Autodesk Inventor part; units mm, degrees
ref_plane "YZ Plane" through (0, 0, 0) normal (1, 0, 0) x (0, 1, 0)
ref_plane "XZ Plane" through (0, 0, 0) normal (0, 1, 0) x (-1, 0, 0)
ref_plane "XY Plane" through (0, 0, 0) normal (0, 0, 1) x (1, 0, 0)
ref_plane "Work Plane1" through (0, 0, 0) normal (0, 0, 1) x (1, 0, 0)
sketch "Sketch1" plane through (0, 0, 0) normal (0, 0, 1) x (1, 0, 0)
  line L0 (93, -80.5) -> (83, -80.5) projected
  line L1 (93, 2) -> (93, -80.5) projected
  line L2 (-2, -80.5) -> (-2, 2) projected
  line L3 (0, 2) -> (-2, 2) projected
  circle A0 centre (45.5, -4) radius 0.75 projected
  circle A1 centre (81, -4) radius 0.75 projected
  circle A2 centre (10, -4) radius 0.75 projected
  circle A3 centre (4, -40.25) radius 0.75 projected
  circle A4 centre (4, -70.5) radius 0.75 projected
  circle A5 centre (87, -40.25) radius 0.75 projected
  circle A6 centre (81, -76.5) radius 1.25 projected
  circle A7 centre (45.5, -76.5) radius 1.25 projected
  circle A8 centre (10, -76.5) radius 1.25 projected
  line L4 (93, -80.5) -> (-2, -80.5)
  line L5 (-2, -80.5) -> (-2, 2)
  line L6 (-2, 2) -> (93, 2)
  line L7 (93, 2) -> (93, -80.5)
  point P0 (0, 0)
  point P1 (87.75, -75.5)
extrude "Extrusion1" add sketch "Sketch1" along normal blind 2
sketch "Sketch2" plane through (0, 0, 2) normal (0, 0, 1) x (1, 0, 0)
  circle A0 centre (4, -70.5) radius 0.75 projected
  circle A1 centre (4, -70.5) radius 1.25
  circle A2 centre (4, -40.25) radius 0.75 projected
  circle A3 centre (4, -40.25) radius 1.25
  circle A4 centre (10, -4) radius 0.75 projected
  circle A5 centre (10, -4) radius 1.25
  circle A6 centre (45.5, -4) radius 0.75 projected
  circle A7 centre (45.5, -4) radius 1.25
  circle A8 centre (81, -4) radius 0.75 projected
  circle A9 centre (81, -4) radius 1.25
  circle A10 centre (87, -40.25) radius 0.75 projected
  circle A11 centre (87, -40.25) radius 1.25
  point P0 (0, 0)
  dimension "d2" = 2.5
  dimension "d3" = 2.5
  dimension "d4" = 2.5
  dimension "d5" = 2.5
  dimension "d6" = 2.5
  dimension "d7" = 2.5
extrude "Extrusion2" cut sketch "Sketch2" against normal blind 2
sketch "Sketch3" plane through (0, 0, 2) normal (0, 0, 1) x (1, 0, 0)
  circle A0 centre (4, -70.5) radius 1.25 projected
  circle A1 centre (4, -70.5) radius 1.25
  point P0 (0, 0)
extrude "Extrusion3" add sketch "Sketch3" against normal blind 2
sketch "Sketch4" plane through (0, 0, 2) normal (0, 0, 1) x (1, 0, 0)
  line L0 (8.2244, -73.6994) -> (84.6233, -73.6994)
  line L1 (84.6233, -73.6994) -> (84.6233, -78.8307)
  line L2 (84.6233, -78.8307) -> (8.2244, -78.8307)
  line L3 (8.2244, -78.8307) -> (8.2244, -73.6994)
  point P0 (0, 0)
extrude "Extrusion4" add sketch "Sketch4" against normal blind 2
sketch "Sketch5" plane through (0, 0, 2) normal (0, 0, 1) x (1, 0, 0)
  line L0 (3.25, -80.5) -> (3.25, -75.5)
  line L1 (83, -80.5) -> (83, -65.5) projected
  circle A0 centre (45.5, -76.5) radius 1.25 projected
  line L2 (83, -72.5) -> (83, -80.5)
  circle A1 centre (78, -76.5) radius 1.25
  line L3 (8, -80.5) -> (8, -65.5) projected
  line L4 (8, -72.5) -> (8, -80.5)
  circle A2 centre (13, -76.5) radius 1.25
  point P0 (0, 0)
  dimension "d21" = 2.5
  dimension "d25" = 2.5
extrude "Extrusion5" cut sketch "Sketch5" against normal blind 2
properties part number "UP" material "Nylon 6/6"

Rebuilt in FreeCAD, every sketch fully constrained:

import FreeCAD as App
import Part
import Sketcher

doc = App.newDocument("Part")
body = doc.addObject("PartDesign::Body", "Body")

sketch1 = doc.addObject("Sketcher::SketchObject", "Sketch")
body.addObject(sketch1)
sketch1.AttachmentSupport = (doc.XY_Plane, [""])
sketch1.MapMode = "FlatFace"
sketch1.addGeometry([
    Part.LineSegment(App.Vector(-2, -80.5, 0), App.Vector(93, -80.5, 0)),
    Part.LineSegment(App.Vector(93, -80.5, 0), App.Vector(93, 2, 0)),
    Part.LineSegment(App.Vector(93, 2, 0), App.Vector(-2, 2, 0)),
    Part.LineSegment(App.Vector(-2, 2, 0), App.Vector(-2, -80.5, 0)),
    Part.Circle(App.Vector(4, -70.5, 0), App.Vector(0, 0, 1), 0.8),
    Part.Circle(App.Vector(10, -76.5, 0), App.Vector(0, 0, 1), 1.2),
    Part.Circle(App.Vector(4, -40.2, 0), App.Vector(0, 0, 1), 0.8),
    Part.Circle(App.Vector(45.5, -76.5, 0), App.Vector(0, 0, 1), 1.2),
    Part.Circle(App.Vector(81, -76.5, 0), App.Vector(0, 0, 1), 1.2),
    Part.Circle(App.Vector(87, -40.2, 0), App.Vector(0, 0, 1), 0.8),
    Part.Circle(App.Vector(10, -4, 0), App.Vector(0, 0, 1), 0.8),
    Part.Circle(App.Vector(45.5, -4, 0), App.Vector(0, 0, 1), 0.8),
    Part.Circle(App.Vector(81, -4, 0), App.Vector(0, 0, 1), 0.8),
], False)
sketch1.addConstraint([
    Sketcher.Constraint("Coincident", 0, 2, 1, 1),
    Sketcher.Constraint("Coincident", 1, 2, 2, 1),
    Sketcher.Constraint("Coincident", 2, 2, 3, 1),
    Sketcher.Constraint("Coincident", 3, 2, 0, 1),
    Sketcher.Constraint("Horizontal", 0),
    Sketcher.Constraint("Vertical", 1),
    Sketcher.Constraint("Horizontal", 2),
    Sketcher.Constraint("Vertical", 3),
    Sketcher.Constraint("Equal", 4, 6),
    Sketcher.Constraint("Equal", 5, 7),
    Sketcher.Constraint("Equal", 7, 8),
    Sketcher.Constraint("Equal", 6, 9),
    Sketcher.Constraint("Equal", 9, 10),
    Sketcher.Constraint("Equal", 10, 11),
    Sketcher.Constraint("Equal", 11, 12),
    Sketcher.Constraint("Horizontal", 5, 3, 7, 3),
    Sketcher.Constraint("Horizontal", 7, 3, 8, 3),
    Sketcher.Constraint("Horizontal", 6, 3, 9, 3),
    Sketcher.Constraint("Horizontal", 10, 3, 11, 3),
    Sketcher.Constraint("Horizontal", 11, 3, 12, 3),
    Sketcher.Constraint("Vertical", 4, 3, 6, 3),
    Sketcher.Constraint("Vertical", 5, 3, 10, 3),
    Sketcher.Constraint("Vertical", 7, 3, 11, 3),
    Sketcher.Constraint("Vertical", 8, 3, 12, 3),
    Sketcher.Constraint("Diameter", 4, 1.5),
    Sketcher.Constraint("Diameter", 5, 2.5),
    Sketcher.Constraint("DistanceX", 0, 1, 0, 2, 95.0),
    Sketcher.Constraint("DistanceY", 1, 1, 1, 2, 82.5),
    Sketcher.Constraint("DistanceX", -1, 1, 4, 3, 4.0),
    Sketcher.Constraint("DistanceX", -1, 1, 5, 3, 10.0),
    Sketcher.Constraint("DistanceX", -1, 1, 8, 3, 81.0),
    Sketcher.Constraint("DistanceX", -1, 1, 9, 3, 87.0),
    Sketcher.Constraint("DistanceY", 10, 3, -1, 1, 4.0),
    Sketcher.Constraint("DistanceX", -1, 1, 0, 2, 93.0),
    Sketcher.Constraint("DistanceY", -1, 1, 1, 2, 2.0),
    Sketcher.Constraint("DistanceY", 5, 3, 4, 3, 6.0),
    Sketcher.Constraint("DistanceY", 0, 2, 8, 3, 4.0),
    Sketcher.Constraint("DistanceX", -1, 1, 7, 3, 45.5),
    Sketcher.Constraint("DistanceY", 6, 3, -1, 1, 40.25),
])
pad1 = doc.addObject("PartDesign::Pad", "Pad")
body.addObject(pad1)
pad1.Profile = sketch1
pad1.Length = 2

sketch2 = doc.addObject("Sketcher::SketchObject", "Sketch001")
body.addObject(sketch2)
sketch2.AttachmentSupport = (doc.XY_Plane, [""])
sketch2.MapMode = "FlatFace"
sketch2.AttachmentOffset = App.Placement(App.Vector(0, 0, 2), App.Rotation())
sketch2.addGeometry([
    Part.Circle(App.Vector(4, -70.5, 0), App.Vector(0, 0, 1), 1.2),
    Part.Circle(App.Vector(4, -70.5, 0), App.Vector(0, 0, 1), 0.8),
    Part.Circle(App.Vector(4, -40.2, 0), App.Vector(0, 0, 1), 1.2),
    Part.Circle(App.Vector(4, -40.2, 0), App.Vector(0, 0, 1), 0.8),
    Part.Circle(App.Vector(10, -4, 0), App.Vector(0, 0, 1), 1.2),
    Part.Circle(App.Vector(10, -4, 0), App.Vector(0, 0, 1), 0.8),
    Part.Circle(App.Vector(45.5, -4, 0), App.Vector(0, 0, 1), 1.2),
    Part.Circle(App.Vector(45.5, -4, 0), App.Vector(0, 0, 1), 0.8),
    Part.Circle(App.Vector(81, -4, 0), App.Vector(0, 0, 1), 1.2),
    Part.Circle(App.Vector(81, -4, 0), App.Vector(0, 0, 1), 0.8),
    Part.Circle(App.Vector(87, -40.2, 0), App.Vector(0, 0, 1), 1.2),
    Part.Circle(App.Vector(87, -40.2, 0), App.Vector(0, 0, 1), 0.8),
], False)
sketch2.addConstraint([
    Sketcher.Constraint("Coincident", 1, 3, 0, 3),
    Sketcher.Constraint("Coincident", 3, 3, 2, 3),
    Sketcher.Constraint("Coincident", 5, 3, 4, 3),
    Sketcher.Constraint("Coincident", 7, 3, 6, 3),
    Sketcher.Constraint("Coincident", 9, 3, 8, 3),
    Sketcher.Constraint("Coincident", 11, 3, 10, 3),
    Sketcher.Constraint("Equal", 0, 2),
    Sketcher.Constraint("Equal", 1, 3),
    Sketcher.Constraint("Equal", 2, 4),
    Sketcher.Constraint("Equal", 3, 5),
    Sketcher.Constraint("Equal", 4, 6),
    Sketcher.Constraint("Equal", 5, 7),
    Sketcher.Constraint("Equal", 6, 8),
    Sketcher.Constraint("Equal", 7, 9),
    Sketcher.Constraint("Equal", 8, 10),
    Sketcher.Constraint("Equal", 9, 11),
    Sketcher.Constraint("Horizontal", 5, 3, 6, 3),
    Sketcher.Constraint("Horizontal", 7, 3, 8, 3),
    Sketcher.Constraint("Horizontal", 3, 3, 10, 3),
    Sketcher.Constraint("Vertical", 1, 3, 2, 3),
    Sketcher.Constraint("Diameter", 0, 2.5),
    Sketcher.Constraint("Diameter", 1, 1.5),
    Sketcher.Constraint("DistanceX", -1, 1, 0, 3, 4.0),
    Sketcher.Constraint("DistanceX", -1, 1, 4, 3, 10.0),
    Sketcher.Constraint("DistanceY", 4, 3, -1, 1, 4.0),
    Sketcher.Constraint("DistanceX", -1, 1, 8, 3, 81.0),
    Sketcher.Constraint("DistanceX", -1, 1, 10, 3, 87.0),
    Sketcher.Constraint("DistanceY", 0, 3, -1, 1, 70.5),
    Sketcher.Constraint("DistanceX", -1, 1, 6, 3, 45.5),
    Sketcher.Constraint("DistanceY", 2, 3, -1, 1, 40.25),
])
pocket1 = doc.addObject("PartDesign::Pocket", "Pocket")
body.addObject(pocket1)
pocket1.Profile = sketch2
pocket1.Length = 2

sketch3 = doc.addObject("Sketcher::SketchObject", "Sketch002")
body.addObject(sketch3)
sketch3.AttachmentSupport = (doc.XY_Plane, [""])
sketch3.MapMode = "FlatFace"
sketch3.AttachmentOffset = App.Placement(App.Vector(0, 0, 2), App.Rotation())
sketch3.addGeometry(Part.Circle(App.Vector(4, -70.5, 0), App.Vector(0, 0, 1), 1.2), False)
sketch3.addConstraint([
    Sketcher.Constraint("Diameter", 0, 2.5),
    Sketcher.Constraint("DistanceX", -1, 1, 0, 3, 4.0),
    Sketcher.Constraint("DistanceY", 0, 3, -1, 1, 70.5),
])
pad2 = doc.addObject("PartDesign::Pad", "Pad001")
body.addObject(pad2)
pad2.Profile = sketch3
pad2.Length = 2
pad2.Reversed = True

sketch4 = doc.addObject("Sketcher::SketchObject", "Sketch003")
body.addObject(sketch4)
sketch4.AttachmentSupport = (doc.XY_Plane, [""])
sketch4.MapMode = "FlatFace"
sketch4.AttachmentOffset = App.Placement(App.Vector(0, 0, 2), App.Rotation())
sketch4.addGeometry([
    Part.LineSegment(App.Vector(85, -74, 0), App.Vector(8, -74, 0)),
    Part.LineSegment(App.Vector(8, -74, 0), App.Vector(8, -79, 0)),
    Part.LineSegment(App.Vector(8, -79, 0), App.Vector(85, -79, 0)),
    Part.LineSegment(App.Vector(85, -79, 0), App.Vector(85, -74, 0)),
], False)
sketch4.addConstraint([
    Sketcher.Constraint("Coincident", 0, 2, 1, 1),
    Sketcher.Constraint("Coincident", 1, 2, 2, 1),
    Sketcher.Constraint("Coincident", 2, 2, 3, 1),
    Sketcher.Constraint("Coincident", 3, 2, 0, 1),
    Sketcher.Constraint("Horizontal", 0),
    Sketcher.Constraint("Vertical", 1),
    Sketcher.Constraint("Horizontal", 2),
    Sketcher.Constraint("Vertical", 3),
    Sketcher.Constraint("DistanceX", 0, 2, 0, 1, 76.399),
    Sketcher.Constraint("DistanceY", 1, 2, 1, 1, 5.1313),
    Sketcher.Constraint("DistanceX", -1, 1, 0, 2, 8.2244),
    Sketcher.Constraint("DistanceY", 0, 2, -1, 1, 73.6994),
])
pad3 = doc.addObject("PartDesign::Pad", "Pad002")
body.addObject(pad3)
pad3.Profile = sketch4
pad3.Length = 2
pad3.Reversed = True

sketch5 = doc.addObject("Sketcher::SketchObject", "Sketch004")
body.addObject(sketch5)
sketch5.AttachmentSupport = (doc.XY_Plane, [""])
sketch5.MapMode = "FlatFace"
sketch5.AttachmentOffset = App.Placement(App.Vector(0, 0, 2), App.Rotation())
sketch5.addGeometry([
    Part.Circle(App.Vector(45.5, -76.5, 0), App.Vector(0, 0, 1), 1.2),
    Part.Circle(App.Vector(78, -76.5, 0), App.Vector(0, 0, 1), 1.2),
    Part.Circle(App.Vector(13, -76.5, 0), App.Vector(0, 0, 1), 1.2),
], False)
sketch5.addConstraint([
    Sketcher.Constraint("Equal", 0, 1),
    Sketcher.Constraint("Equal", 1, 2),
    Sketcher.Constraint("Horizontal", 0, 3, 1, 3),
    Sketcher.Constraint("Horizontal", 1, 3, 2, 3),
    Sketcher.Constraint("Diameter", 0, 2.5),
    Sketcher.Constraint("DistanceX", -1, 1, 1, 3, 78.0),
    Sketcher.Constraint("DistanceX", -1, 1, 2, 3, 13.0),
    Sketcher.Constraint("DistanceX", -1, 1, 0, 3, 45.5),
    Sketcher.Constraint("DistanceY", 0, 3, -1, 1, 76.5),
])
pocket2 = doc.addObject("PartDesign::Pocket", "Pocket001")
body.addObject(pocket2)
pocket2.Profile = sketch5
pocket2.Length = 2

doc.recompute()
